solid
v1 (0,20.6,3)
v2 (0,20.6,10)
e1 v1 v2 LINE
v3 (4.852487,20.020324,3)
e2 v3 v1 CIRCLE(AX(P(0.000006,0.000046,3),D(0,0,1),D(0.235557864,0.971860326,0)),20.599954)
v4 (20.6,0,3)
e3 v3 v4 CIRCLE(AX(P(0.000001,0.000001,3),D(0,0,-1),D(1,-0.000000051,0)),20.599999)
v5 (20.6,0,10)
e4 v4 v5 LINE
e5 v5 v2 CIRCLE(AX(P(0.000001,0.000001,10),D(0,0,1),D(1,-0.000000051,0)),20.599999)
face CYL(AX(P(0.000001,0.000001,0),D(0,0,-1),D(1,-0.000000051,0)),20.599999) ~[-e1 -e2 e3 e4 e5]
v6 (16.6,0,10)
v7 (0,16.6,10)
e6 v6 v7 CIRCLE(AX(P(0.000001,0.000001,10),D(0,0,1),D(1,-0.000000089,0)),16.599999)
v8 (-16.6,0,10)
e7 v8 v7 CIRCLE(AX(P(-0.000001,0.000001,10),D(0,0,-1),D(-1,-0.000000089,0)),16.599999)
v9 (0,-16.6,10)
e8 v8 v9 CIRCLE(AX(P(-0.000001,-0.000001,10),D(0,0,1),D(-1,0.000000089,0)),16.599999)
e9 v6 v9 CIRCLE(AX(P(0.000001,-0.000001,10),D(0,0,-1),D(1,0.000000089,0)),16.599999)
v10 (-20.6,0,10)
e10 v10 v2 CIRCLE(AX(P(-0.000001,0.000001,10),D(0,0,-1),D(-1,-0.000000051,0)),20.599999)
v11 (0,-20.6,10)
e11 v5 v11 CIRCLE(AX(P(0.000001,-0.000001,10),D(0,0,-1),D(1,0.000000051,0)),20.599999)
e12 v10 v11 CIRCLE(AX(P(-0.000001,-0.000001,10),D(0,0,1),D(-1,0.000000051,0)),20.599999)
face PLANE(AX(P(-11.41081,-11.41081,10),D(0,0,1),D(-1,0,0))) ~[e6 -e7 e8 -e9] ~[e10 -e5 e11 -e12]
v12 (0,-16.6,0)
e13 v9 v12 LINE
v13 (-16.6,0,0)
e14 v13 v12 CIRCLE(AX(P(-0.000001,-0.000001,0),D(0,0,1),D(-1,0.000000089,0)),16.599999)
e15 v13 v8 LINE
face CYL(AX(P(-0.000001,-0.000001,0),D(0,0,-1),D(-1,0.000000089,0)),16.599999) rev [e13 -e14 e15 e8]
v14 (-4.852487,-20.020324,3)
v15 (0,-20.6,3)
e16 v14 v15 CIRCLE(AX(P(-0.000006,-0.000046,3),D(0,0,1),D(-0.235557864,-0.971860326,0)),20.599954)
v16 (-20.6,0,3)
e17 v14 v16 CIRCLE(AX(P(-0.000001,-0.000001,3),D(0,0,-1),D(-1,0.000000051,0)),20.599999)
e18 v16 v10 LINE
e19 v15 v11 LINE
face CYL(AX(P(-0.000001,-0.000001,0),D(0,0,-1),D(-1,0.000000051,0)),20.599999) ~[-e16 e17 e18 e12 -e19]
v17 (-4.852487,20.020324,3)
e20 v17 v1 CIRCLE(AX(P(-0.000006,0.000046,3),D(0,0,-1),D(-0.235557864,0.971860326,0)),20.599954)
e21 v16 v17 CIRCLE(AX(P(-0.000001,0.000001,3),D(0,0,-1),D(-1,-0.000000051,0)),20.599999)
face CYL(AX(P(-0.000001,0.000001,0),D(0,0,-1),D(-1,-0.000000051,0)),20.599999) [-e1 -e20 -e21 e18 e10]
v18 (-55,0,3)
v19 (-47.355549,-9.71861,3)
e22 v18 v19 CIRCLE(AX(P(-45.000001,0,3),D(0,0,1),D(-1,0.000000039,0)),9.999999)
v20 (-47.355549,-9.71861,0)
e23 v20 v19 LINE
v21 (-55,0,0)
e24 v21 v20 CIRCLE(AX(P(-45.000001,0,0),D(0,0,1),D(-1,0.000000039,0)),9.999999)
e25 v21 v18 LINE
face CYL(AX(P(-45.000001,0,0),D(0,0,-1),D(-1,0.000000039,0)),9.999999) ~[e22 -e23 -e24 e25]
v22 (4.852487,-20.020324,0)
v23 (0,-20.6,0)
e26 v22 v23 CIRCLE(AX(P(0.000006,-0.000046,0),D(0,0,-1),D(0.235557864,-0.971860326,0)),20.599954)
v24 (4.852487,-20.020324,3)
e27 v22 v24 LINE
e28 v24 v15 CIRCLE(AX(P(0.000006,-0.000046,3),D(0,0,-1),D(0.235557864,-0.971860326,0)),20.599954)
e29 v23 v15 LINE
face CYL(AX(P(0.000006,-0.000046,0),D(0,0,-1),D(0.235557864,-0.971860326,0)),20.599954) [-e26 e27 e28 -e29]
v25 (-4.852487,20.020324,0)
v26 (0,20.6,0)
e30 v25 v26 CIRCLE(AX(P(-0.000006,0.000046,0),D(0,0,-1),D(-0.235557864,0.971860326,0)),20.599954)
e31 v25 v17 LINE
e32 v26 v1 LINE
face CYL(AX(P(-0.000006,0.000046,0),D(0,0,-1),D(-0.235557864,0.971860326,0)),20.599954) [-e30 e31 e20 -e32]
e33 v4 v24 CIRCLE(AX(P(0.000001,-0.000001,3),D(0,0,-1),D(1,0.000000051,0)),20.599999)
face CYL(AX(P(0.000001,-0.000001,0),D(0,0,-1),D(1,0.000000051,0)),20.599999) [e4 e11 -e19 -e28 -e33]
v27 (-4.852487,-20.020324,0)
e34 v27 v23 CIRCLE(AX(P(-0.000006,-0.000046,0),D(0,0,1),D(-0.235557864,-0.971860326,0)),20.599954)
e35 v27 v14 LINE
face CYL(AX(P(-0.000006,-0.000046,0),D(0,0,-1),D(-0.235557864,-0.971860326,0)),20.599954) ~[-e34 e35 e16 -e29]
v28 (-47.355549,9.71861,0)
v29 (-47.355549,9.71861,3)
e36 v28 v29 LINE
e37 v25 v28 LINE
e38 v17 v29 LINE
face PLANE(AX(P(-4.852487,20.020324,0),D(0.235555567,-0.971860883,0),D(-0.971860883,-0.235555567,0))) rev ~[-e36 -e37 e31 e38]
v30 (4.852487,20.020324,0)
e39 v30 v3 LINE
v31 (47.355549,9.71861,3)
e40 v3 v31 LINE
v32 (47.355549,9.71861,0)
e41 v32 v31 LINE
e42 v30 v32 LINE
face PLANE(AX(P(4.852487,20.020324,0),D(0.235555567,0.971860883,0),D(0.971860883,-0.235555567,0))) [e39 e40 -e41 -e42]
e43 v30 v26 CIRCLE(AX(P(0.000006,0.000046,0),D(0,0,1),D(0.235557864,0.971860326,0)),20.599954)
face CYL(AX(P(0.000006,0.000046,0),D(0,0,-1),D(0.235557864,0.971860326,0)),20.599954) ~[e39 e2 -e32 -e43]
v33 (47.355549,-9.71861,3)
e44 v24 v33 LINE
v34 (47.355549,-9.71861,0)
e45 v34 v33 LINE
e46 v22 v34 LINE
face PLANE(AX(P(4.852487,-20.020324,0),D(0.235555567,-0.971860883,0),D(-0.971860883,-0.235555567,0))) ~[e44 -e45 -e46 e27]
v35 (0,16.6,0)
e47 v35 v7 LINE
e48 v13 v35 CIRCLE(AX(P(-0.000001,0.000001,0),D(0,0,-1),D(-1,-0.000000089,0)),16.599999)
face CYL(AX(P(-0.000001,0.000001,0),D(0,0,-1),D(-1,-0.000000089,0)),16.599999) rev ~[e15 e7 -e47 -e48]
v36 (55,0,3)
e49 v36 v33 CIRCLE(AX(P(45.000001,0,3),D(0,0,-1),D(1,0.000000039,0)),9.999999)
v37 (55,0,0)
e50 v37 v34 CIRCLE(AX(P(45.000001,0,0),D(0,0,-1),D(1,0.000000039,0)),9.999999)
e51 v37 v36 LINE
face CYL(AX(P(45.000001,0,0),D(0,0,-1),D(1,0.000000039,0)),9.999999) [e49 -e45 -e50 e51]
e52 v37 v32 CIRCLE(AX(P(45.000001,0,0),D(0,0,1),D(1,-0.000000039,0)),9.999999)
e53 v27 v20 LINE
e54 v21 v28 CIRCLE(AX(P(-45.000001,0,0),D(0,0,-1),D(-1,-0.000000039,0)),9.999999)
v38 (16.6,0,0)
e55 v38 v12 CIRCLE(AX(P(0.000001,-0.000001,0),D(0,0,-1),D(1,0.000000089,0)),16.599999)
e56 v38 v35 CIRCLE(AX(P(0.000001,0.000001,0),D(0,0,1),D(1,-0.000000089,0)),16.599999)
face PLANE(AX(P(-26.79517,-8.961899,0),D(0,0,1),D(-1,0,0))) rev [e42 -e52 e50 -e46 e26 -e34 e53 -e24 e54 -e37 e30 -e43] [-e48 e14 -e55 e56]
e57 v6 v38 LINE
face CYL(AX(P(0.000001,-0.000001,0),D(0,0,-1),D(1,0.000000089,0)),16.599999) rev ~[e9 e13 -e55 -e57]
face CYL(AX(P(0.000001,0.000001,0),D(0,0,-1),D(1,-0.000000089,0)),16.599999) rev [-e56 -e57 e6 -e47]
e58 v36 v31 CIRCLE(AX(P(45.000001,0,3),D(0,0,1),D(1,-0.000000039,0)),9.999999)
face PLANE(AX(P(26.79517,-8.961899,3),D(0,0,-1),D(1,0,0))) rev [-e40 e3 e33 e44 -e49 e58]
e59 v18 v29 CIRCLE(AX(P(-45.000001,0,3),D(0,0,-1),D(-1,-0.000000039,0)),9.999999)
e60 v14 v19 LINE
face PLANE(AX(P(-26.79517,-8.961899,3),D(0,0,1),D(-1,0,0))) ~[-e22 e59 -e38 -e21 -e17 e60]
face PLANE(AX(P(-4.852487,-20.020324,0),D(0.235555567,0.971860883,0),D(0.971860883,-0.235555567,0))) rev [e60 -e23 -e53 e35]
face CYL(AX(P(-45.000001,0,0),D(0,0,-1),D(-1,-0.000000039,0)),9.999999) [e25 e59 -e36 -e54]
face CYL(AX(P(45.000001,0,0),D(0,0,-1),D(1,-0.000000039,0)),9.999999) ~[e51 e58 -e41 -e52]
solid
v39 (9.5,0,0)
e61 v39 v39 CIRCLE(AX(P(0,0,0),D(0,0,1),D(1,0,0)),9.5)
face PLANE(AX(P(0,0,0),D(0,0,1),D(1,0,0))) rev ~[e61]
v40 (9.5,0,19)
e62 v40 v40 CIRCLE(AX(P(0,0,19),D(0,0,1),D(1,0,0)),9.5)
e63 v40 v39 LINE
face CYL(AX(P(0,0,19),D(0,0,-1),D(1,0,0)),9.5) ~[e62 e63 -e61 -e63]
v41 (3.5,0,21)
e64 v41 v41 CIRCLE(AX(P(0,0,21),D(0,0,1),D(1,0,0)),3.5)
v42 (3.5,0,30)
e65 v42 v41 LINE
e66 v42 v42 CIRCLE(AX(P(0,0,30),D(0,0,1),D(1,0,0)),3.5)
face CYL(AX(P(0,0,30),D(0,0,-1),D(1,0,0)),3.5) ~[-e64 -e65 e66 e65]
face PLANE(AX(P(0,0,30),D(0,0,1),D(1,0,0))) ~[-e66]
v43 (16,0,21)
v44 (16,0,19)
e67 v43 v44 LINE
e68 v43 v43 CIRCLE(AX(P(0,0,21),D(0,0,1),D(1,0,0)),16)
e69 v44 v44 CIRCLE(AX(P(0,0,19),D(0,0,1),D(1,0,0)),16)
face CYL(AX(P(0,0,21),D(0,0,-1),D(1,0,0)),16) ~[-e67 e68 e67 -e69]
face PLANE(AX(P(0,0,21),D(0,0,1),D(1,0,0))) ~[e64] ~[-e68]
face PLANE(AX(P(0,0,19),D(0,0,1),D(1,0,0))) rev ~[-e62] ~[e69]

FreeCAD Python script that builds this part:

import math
import FreeCAD as App
import Part
import Sketcher
from FreeCAD import Vector
Q = App.Units.Quantity


def add_polygon(sketch, points):
    """Adds a closed chain of lines whose ends are joined by coincident constraints."""
    first, n = sketch.GeometryCount, len(points)
    for a, b in zip(points, points[1:] + points[:1]):
        sketch.addGeometry(Part.LineSegment(App.Vector(*a, 0), App.Vector(*b, 0)), False)
    for i in range(n):
        sketch.addConstraint(Sketcher.Constraint("Coincident", first + i, 2, first + (i + 1) % n, 1))

doc = App.newDocument("Part")
params = doc.addObject("Spreadsheet::Sheet", "Params")
for row, (alias, value) in enumerate([
    ("sketch1_radius", "9.999999 mm"),
    ("sketch1_radius2", "16.599999 mm"),
    ("sketch1_height", "4 mm"),
    ("sketch1_width", "38.4 mm"),
    ("pad1_length", "3 mm"),
    ("sketch2_radius", "16.599999 mm"),
    ("sketch2_radius2", "20.599999 mm"),
    ("pad2_length", "10 mm"),
    ("sketch3_radius", "9.999999 mm"),
    ("sketch3_radius2", "16.599999 mm"),
    ("sketch3_height", "4 mm"),
    ("sketch3_width", "38.4 mm"),
    ("pad3_length", "3 mm"),
    ("sketch4_radius", "16.599999 mm"),
    ("sketch4_radius2", "20.599999 mm"),
    ("pad4_length", "10 mm"),
    ("sketch5_height", "30 mm"),
    ("sketch5_height2", "19 mm"),
    ("sketch5_height3", "2 mm"),
    ("sketch5_width", "3.5 mm"),
    ("sketch5_width2", "9.5 mm"),
    ("revolution_angle", "360 deg"),
], start=1):
    params.set(f"A{row}", alias)
    params.set(f"B{row}", "=" + value)
    params.setAlias(f"B{row}", alias)

body = doc.addObject("PartDesign::Body", "Body")

sketch1 = body.newObject("Sketcher::SketchObject", "Sketch")
sketch1.AttachmentSupport = (doc.getObject("XY_Plane"), [""])
sketch1.MapMode = "FlatFace"
sketch1.addGeometry([
    Part.LineSegment(Vector(0, 20.6, 0), Vector(0, 16.6, 0)),
    Part.ArcOfCircle(Part.Circle(Vector(0.000001, 0.000001, 0), Vector(0, 0, 1), 16.599999), math.radians(-0.000005), math.radians(90.000005)),
    Part.LineSegment(Vector(16.6, 0, 0), Vector(55, 0, 0)),
    Part.ArcOfCircle(Part.Circle(Vector(45.000001, 0, 0), Vector(0, 0, 1), 9.999999), math.radians(-0.000002), math.radians(76.37567)),
    Part.LineSegment(Vector(47.355549, 9.71861, 0), Vector(4.852487, 20.020324, 0)),
    Part.ArcOfCircle(Part.Circle(Vector(0.000006, 0.000046, 0), Vector(0, 0, 1), 20.599954), math.radians(76.375491), math.radians(90.000016)),
], False)
sketch1.addConstraint([
    Sketcher.Constraint("Coincident", 0, 2, 1, 2),
    Sketcher.Constraint("Coincident", 1, 1, 2, 1),
    Sketcher.Constraint("Coincident", 2, 2, 3, 1),
    Sketcher.Constraint("Coincident", 3, 2, 4, 1),
    Sketcher.Constraint("Coincident", 4, 2, 5, 1),
    Sketcher.Constraint("Coincident", 5, 2, 0, 1),
    Sketcher.Constraint("Vertical", 0),
    Sketcher.Constraint("Horizontal", 2),
    Sketcher.Constraint("Coincident", 1, 3, -1, 1),
    Sketcher.Constraint("PointOnObject", 3, 3, -1),
    Sketcher.Constraint("PointOnObject", 0, 2, -2),
    Sketcher.Constraint("PointOnObject", 1, 1, -1),
    Sketcher.Constraint("Radius", 3, Q("9.999999 mm")),
    Sketcher.Constraint("Radius", 1, Q("16.599999 mm")),
    Sketcher.Constraint("DistanceY", 0, 2, 0, 1, Q("4 mm")),
    Sketcher.Constraint("DistanceX", 2, 1, 2, 2, Q("38.4 mm")),
    Sketcher.Constraint("Radius", 5, Q("20.599954 mm")),
    Sketcher.Constraint("Distance", 4, Q("43.733689 mm")),
    Sketcher.Constraint("DistanceX", -1, 1, 3, 2, Q("47.355549 mm")),
    Sketcher.Constraint("DistanceX", 5, 3, 4, 2, Q("4.852481 mm")),
])
sketch1.setExpression("Constraints[12]", "Params.sketch1_radius")
sketch1.setExpression("Constraints[13]", "Params.sketch1_radius2")
sketch1.setExpression("Constraints[14]", "Params.sketch1_height")
sketch1.setExpression("Constraints[15]", "Params.sketch1_width")
pad1 = body.newObject("PartDesign::Pad", "Pad")
pad1.Profile = sketch1
pad1.setExpression("Length", "Params.pad1_length")

sketch2 = body.newObject("Sketcher::SketchObject", "Sketch001")
sketch2.AttachmentSupport = (doc.getObject("XY_Plane"), [""])
sketch2.MapMode = "FlatFace"
sketch2.addGeometry([
    Part.ArcOfCircle(Part.Circle(Vector(0, 0, 0), Vector(0, 0, 1), 16.6), math.radians(0), math.radians(90)),
    Part.LineSegment(Vector(16.6, 0, 0), Vector(20.6, 0, 0)),
    Part.ArcOfCircle(Part.Circle(Vector(0, 0, 0), Vector(0, 0, 1), 20.6), math.radians(0), math.radians(90)),
    Part.LineSegment(Vector(0, 20.6, 0), Vector(0, 16.6, 0)),
], False)
sketch2.addConstraint([
    Sketcher.Constraint("Coincident", 0, 1, 1, 1),
    Sketcher.Constraint("Coincident", 1, 2, 2, 1),
    Sketcher.Constraint("Coincident", 2, 2, 3, 1),
    Sketcher.Constraint("Coincident", 3, 2, 0, 2),
    Sketcher.Constraint("Horizontal", 1),
    Sketcher.Constraint("Vertical", 3),
    Sketcher.Constraint("Coincident", 0, 3, -1, 1),
    Sketcher.Constraint("Coincident", 2, 3, -1, 1),
    Sketcher.Constraint("PointOnObject", 0, 1, -1),
    Sketcher.Constraint("PointOnObject", 2, 2, -2),
    Sketcher.Constraint("Radius", 0, Q("16.599999 mm")),
    Sketcher.Constraint("Radius", 2, Q("20.599999 mm")),
])
sketch2.setExpression("Constraints[10]", "Params.sketch2_radius")
sketch2.setExpression("Constraints[11]", "Params.sketch2_radius2")
pad2 = body.newObject("PartDesign::Pad", "Pad001")
pad2.Profile = sketch2
pad2.setExpression("Length", "Params.pad2_length")

sketch3 = body.newObject("Sketcher::SketchObject", "Sketch002")
sketch3.AttachmentSupport = (doc.getObject("XY_Plane"), [""])
sketch3.MapMode = "FlatFace"
sketch3.addGeometry([
    Part.LineSegment(Vector(0, 20.6, 0), Vector(0, 16.6, 0)),
    Part.ArcOfCircle(Part.Circle(Vector(-0.000001, 0.000001, 0), Vector(0, 0, 1), 16.599999), math.radians(89.999995), math.radians(180.000005)),
    Part.LineSegment(Vector(-16.6, 0, 0), Vector(-55, 0, 0)),
    Part.ArcOfCircle(Part.Circle(Vector(-45.000001, 0, 0), Vector(0, 0, 1), 9.999999), math.radians(103.62433), math.radians(180.000002)),
    Part.LineSegment(Vector(-47.355549, 9.71861, 0), Vector(-4.852487, 20.020324, 0)),
    Part.ArcOfCircle(Part.Circle(Vector(-0.000006, 0.000046, 0), Vector(0, 0, 1), 20.599954), math.radians(89.999984), math.radians(103.624509)),
], False)
sketch3.addConstraint([
    Sketcher.Constraint("Coincident", 0, 2, 1, 1),
    Sketcher.Constraint("Coincident", 1, 2, 2, 1),
    Sketcher.Constraint("Coincident", 2, 2, 3, 2),
    Sketcher.Constraint("Coincident", 3, 1, 4, 1),
    Sketcher.Constraint("Coincident", 4, 2, 5, 2),
    Sketcher.Constraint("Coincident", 5, 1, 0, 1),
    Sketcher.Constraint("Vertical", 0),
    Sketcher.Constraint("Horizontal", 2),
    Sketcher.Constraint("Coincident", 1, 3, -1, 1),
    Sketcher.Constraint("PointOnObject", 3, 3, -1),
    Sketcher.Constraint("PointOnObject", 0, 2, -2),
    Sketcher.Constraint("PointOnObject", 1, 2, -1),
    Sketcher.Constraint("Radius", 3, Q("9.999999 mm")),
    Sketcher.Constraint("Radius", 1, Q("16.599999 mm")),
    Sketcher.Constraint("DistanceY", 0, 2, 0, 1, Q("4 mm")),
    Sketcher.Constraint("DistanceX", 2, 2, 2, 1, Q("38.4 mm")),
    Sketcher.Constraint("Radius", 5, Q("20.599954 mm")),
    Sketcher.Constraint("Distance", 4, Q("43.733689 mm")),
    Sketcher.Constraint("DistanceX", 3, 1, -1, 1, Q("47.355549 mm")),
    Sketcher.Constraint("DistanceX", 4, 2, 5, 3, Q("4.852481 mm")),
])
sketch3.setExpression("Constraints[12]", "Params.sketch3_radius")
sketch3.setExpression("Constraints[13]", "Params.sketch3_radius2")
sketch3.setExpression("Constraints[14]", "Params.sketch3_height")
sketch3.setExpression("Constraints[15]", "Params.sketch3_width")
pad3 = body.newObject("PartDesign::Pad", "Pad002")
pad3.Profile = sketch3
pad3.setExpression("Length", "Params.pad3_length")

sketch4 = body.newObject("Sketcher::SketchObject", "Sketch003")
sketch4.AttachmentSupport = (doc.getObject("XY_Plane"), [""])
sketch4.MapMode = "FlatFace"
sketch4.addGeometry([
    Part.ArcOfCircle(Part.Circle(Vector(0, 0, 0), Vector(0, 0, 1), 16.6), math.radians(90), math.radians(180)),
    Part.LineSegment(Vector(-16.6, 0, 0), Vector(-20.6, 0, 0)),
    Part.ArcOfCircle(Part.Circle(Vector(0, 0, 0), Vector(0, 0, 1), 20.6), math.radians(90), math.radians(180)),
    Part.LineSegment(Vector(0, 20.6, 0), Vector(0, 16.6, 0)),
], False)
sketch4.addConstraint([
    Sketcher.Constraint("Coincident", 0, 2, 1, 1),
    Sketcher.Constraint("Coincident", 1, 2, 2, 2),
    Sketcher.Constraint("Coincident", 2, 1, 3, 1),
    Sketcher.Constraint("Coincident", 3, 2, 0, 1),
    Sketcher.Constraint("Horizontal", 1),
    Sketcher.Constraint("Vertical", 3),
    Sketcher.Constraint("Coincident", 0, 3, -1, 1),
    Sketcher.Constraint("Coincident", 2, 3, -1, 1),
    Sketcher.Constraint("PointOnObject", 0, 2, -1),
    Sketcher.Constraint("PointOnObject", 2, 1, -2),
    Sketcher.Constraint("Radius", 0, Q("16.599999 mm")),
    Sketcher.Constraint("Radius", 2, Q("20.599999 mm")),
])
sketch4.setExpression("Constraints[10]", "Params.sketch4_radius")
sketch4.setExpression("Constraints[11]", "Params.sketch4_radius2")
pad4 = body.newObject("PartDesign::Pad", "Pad003")
pad4.Profile = sketch4
pad4.setExpression("Length", "Params.pad4_length")
doc.recompute()

mirrored = body.newObject("PartDesign::Mirrored", "Mirrored")
mirrored.Originals = [pad1, pad2, pad3, pad4]
mirrored.MirrorPlane = (doc.getObject("XZ_Plane"), [""])
body.Tip = mirrored
body2 = doc.addObject("PartDesign::Body", "Body001")

sketch5 = body2.newObject("Sketcher::SketchObject", "Sketch004")
sketch5.AttachmentSupport = (doc.getObject("XZ_Plane001"), [""])
sketch5.MapMode = "FlatFace"
add_polygon(sketch5, [(3.5, 30), (0, 30), (0, 0), (9.5, 0), (9.5, 19), (16, 19), (16, 21), (3.5, 21)])
sketch5.addConstraint([
    Sketcher.Constraint("Horizontal", 0),
    Sketcher.Constraint("Vertical", 1),
    Sketcher.Constraint("Horizontal", 2),
    Sketcher.Constraint("Vertical", 3),
    Sketcher.Constraint("Horizontal", 4),
    Sketcher.Constraint("Vertical", 5),
    Sketcher.Constraint("Horizontal", 6),
    Sketcher.Constraint("Vertical", 7),
    Sketcher.Constraint("Coincident", 1, 2, -1, 1),
    Sketcher.Constraint("DistanceY", 1, 2, 1, 1, Q("30 mm")),
    Sketcher.Constraint("DistanceY", 3, 1, 3, 2, Q("19 mm")),
    Sketcher.Constraint("DistanceY", 5, 1, 5, 2, Q("2 mm")),
    Sketcher.Constraint("DistanceX", 0, 2, 0, 1, Q("3.5 mm")),
    Sketcher.Constraint("DistanceX", 2, 1, 2, 2, Q("9.5 mm")),
    Sketcher.Constraint("DistanceX", 4, 1, 4, 2, Q("6.5 mm")),
])
sketch5.setExpression("Constraints[17]", "Params.sketch5_height")
sketch5.setExpression("Constraints[18]", "Params.sketch5_height2")
sketch5.setExpression("Constraints[19]", "Params.sketch5_height3")
sketch5.setExpression("Constraints[20]", "Params.sketch5_width")
sketch5.setExpression("Constraints[21]", "Params.sketch5_width2")
revolution = body2.newObject("PartDesign::Revolution", "Revolution")
revolution.Profile = sketch5
revolution.ReferenceAxis = (sketch5, ["V_Axis"])
revolution.setExpression("Angle", "Params.revolution_angle")

doc.recompute()
